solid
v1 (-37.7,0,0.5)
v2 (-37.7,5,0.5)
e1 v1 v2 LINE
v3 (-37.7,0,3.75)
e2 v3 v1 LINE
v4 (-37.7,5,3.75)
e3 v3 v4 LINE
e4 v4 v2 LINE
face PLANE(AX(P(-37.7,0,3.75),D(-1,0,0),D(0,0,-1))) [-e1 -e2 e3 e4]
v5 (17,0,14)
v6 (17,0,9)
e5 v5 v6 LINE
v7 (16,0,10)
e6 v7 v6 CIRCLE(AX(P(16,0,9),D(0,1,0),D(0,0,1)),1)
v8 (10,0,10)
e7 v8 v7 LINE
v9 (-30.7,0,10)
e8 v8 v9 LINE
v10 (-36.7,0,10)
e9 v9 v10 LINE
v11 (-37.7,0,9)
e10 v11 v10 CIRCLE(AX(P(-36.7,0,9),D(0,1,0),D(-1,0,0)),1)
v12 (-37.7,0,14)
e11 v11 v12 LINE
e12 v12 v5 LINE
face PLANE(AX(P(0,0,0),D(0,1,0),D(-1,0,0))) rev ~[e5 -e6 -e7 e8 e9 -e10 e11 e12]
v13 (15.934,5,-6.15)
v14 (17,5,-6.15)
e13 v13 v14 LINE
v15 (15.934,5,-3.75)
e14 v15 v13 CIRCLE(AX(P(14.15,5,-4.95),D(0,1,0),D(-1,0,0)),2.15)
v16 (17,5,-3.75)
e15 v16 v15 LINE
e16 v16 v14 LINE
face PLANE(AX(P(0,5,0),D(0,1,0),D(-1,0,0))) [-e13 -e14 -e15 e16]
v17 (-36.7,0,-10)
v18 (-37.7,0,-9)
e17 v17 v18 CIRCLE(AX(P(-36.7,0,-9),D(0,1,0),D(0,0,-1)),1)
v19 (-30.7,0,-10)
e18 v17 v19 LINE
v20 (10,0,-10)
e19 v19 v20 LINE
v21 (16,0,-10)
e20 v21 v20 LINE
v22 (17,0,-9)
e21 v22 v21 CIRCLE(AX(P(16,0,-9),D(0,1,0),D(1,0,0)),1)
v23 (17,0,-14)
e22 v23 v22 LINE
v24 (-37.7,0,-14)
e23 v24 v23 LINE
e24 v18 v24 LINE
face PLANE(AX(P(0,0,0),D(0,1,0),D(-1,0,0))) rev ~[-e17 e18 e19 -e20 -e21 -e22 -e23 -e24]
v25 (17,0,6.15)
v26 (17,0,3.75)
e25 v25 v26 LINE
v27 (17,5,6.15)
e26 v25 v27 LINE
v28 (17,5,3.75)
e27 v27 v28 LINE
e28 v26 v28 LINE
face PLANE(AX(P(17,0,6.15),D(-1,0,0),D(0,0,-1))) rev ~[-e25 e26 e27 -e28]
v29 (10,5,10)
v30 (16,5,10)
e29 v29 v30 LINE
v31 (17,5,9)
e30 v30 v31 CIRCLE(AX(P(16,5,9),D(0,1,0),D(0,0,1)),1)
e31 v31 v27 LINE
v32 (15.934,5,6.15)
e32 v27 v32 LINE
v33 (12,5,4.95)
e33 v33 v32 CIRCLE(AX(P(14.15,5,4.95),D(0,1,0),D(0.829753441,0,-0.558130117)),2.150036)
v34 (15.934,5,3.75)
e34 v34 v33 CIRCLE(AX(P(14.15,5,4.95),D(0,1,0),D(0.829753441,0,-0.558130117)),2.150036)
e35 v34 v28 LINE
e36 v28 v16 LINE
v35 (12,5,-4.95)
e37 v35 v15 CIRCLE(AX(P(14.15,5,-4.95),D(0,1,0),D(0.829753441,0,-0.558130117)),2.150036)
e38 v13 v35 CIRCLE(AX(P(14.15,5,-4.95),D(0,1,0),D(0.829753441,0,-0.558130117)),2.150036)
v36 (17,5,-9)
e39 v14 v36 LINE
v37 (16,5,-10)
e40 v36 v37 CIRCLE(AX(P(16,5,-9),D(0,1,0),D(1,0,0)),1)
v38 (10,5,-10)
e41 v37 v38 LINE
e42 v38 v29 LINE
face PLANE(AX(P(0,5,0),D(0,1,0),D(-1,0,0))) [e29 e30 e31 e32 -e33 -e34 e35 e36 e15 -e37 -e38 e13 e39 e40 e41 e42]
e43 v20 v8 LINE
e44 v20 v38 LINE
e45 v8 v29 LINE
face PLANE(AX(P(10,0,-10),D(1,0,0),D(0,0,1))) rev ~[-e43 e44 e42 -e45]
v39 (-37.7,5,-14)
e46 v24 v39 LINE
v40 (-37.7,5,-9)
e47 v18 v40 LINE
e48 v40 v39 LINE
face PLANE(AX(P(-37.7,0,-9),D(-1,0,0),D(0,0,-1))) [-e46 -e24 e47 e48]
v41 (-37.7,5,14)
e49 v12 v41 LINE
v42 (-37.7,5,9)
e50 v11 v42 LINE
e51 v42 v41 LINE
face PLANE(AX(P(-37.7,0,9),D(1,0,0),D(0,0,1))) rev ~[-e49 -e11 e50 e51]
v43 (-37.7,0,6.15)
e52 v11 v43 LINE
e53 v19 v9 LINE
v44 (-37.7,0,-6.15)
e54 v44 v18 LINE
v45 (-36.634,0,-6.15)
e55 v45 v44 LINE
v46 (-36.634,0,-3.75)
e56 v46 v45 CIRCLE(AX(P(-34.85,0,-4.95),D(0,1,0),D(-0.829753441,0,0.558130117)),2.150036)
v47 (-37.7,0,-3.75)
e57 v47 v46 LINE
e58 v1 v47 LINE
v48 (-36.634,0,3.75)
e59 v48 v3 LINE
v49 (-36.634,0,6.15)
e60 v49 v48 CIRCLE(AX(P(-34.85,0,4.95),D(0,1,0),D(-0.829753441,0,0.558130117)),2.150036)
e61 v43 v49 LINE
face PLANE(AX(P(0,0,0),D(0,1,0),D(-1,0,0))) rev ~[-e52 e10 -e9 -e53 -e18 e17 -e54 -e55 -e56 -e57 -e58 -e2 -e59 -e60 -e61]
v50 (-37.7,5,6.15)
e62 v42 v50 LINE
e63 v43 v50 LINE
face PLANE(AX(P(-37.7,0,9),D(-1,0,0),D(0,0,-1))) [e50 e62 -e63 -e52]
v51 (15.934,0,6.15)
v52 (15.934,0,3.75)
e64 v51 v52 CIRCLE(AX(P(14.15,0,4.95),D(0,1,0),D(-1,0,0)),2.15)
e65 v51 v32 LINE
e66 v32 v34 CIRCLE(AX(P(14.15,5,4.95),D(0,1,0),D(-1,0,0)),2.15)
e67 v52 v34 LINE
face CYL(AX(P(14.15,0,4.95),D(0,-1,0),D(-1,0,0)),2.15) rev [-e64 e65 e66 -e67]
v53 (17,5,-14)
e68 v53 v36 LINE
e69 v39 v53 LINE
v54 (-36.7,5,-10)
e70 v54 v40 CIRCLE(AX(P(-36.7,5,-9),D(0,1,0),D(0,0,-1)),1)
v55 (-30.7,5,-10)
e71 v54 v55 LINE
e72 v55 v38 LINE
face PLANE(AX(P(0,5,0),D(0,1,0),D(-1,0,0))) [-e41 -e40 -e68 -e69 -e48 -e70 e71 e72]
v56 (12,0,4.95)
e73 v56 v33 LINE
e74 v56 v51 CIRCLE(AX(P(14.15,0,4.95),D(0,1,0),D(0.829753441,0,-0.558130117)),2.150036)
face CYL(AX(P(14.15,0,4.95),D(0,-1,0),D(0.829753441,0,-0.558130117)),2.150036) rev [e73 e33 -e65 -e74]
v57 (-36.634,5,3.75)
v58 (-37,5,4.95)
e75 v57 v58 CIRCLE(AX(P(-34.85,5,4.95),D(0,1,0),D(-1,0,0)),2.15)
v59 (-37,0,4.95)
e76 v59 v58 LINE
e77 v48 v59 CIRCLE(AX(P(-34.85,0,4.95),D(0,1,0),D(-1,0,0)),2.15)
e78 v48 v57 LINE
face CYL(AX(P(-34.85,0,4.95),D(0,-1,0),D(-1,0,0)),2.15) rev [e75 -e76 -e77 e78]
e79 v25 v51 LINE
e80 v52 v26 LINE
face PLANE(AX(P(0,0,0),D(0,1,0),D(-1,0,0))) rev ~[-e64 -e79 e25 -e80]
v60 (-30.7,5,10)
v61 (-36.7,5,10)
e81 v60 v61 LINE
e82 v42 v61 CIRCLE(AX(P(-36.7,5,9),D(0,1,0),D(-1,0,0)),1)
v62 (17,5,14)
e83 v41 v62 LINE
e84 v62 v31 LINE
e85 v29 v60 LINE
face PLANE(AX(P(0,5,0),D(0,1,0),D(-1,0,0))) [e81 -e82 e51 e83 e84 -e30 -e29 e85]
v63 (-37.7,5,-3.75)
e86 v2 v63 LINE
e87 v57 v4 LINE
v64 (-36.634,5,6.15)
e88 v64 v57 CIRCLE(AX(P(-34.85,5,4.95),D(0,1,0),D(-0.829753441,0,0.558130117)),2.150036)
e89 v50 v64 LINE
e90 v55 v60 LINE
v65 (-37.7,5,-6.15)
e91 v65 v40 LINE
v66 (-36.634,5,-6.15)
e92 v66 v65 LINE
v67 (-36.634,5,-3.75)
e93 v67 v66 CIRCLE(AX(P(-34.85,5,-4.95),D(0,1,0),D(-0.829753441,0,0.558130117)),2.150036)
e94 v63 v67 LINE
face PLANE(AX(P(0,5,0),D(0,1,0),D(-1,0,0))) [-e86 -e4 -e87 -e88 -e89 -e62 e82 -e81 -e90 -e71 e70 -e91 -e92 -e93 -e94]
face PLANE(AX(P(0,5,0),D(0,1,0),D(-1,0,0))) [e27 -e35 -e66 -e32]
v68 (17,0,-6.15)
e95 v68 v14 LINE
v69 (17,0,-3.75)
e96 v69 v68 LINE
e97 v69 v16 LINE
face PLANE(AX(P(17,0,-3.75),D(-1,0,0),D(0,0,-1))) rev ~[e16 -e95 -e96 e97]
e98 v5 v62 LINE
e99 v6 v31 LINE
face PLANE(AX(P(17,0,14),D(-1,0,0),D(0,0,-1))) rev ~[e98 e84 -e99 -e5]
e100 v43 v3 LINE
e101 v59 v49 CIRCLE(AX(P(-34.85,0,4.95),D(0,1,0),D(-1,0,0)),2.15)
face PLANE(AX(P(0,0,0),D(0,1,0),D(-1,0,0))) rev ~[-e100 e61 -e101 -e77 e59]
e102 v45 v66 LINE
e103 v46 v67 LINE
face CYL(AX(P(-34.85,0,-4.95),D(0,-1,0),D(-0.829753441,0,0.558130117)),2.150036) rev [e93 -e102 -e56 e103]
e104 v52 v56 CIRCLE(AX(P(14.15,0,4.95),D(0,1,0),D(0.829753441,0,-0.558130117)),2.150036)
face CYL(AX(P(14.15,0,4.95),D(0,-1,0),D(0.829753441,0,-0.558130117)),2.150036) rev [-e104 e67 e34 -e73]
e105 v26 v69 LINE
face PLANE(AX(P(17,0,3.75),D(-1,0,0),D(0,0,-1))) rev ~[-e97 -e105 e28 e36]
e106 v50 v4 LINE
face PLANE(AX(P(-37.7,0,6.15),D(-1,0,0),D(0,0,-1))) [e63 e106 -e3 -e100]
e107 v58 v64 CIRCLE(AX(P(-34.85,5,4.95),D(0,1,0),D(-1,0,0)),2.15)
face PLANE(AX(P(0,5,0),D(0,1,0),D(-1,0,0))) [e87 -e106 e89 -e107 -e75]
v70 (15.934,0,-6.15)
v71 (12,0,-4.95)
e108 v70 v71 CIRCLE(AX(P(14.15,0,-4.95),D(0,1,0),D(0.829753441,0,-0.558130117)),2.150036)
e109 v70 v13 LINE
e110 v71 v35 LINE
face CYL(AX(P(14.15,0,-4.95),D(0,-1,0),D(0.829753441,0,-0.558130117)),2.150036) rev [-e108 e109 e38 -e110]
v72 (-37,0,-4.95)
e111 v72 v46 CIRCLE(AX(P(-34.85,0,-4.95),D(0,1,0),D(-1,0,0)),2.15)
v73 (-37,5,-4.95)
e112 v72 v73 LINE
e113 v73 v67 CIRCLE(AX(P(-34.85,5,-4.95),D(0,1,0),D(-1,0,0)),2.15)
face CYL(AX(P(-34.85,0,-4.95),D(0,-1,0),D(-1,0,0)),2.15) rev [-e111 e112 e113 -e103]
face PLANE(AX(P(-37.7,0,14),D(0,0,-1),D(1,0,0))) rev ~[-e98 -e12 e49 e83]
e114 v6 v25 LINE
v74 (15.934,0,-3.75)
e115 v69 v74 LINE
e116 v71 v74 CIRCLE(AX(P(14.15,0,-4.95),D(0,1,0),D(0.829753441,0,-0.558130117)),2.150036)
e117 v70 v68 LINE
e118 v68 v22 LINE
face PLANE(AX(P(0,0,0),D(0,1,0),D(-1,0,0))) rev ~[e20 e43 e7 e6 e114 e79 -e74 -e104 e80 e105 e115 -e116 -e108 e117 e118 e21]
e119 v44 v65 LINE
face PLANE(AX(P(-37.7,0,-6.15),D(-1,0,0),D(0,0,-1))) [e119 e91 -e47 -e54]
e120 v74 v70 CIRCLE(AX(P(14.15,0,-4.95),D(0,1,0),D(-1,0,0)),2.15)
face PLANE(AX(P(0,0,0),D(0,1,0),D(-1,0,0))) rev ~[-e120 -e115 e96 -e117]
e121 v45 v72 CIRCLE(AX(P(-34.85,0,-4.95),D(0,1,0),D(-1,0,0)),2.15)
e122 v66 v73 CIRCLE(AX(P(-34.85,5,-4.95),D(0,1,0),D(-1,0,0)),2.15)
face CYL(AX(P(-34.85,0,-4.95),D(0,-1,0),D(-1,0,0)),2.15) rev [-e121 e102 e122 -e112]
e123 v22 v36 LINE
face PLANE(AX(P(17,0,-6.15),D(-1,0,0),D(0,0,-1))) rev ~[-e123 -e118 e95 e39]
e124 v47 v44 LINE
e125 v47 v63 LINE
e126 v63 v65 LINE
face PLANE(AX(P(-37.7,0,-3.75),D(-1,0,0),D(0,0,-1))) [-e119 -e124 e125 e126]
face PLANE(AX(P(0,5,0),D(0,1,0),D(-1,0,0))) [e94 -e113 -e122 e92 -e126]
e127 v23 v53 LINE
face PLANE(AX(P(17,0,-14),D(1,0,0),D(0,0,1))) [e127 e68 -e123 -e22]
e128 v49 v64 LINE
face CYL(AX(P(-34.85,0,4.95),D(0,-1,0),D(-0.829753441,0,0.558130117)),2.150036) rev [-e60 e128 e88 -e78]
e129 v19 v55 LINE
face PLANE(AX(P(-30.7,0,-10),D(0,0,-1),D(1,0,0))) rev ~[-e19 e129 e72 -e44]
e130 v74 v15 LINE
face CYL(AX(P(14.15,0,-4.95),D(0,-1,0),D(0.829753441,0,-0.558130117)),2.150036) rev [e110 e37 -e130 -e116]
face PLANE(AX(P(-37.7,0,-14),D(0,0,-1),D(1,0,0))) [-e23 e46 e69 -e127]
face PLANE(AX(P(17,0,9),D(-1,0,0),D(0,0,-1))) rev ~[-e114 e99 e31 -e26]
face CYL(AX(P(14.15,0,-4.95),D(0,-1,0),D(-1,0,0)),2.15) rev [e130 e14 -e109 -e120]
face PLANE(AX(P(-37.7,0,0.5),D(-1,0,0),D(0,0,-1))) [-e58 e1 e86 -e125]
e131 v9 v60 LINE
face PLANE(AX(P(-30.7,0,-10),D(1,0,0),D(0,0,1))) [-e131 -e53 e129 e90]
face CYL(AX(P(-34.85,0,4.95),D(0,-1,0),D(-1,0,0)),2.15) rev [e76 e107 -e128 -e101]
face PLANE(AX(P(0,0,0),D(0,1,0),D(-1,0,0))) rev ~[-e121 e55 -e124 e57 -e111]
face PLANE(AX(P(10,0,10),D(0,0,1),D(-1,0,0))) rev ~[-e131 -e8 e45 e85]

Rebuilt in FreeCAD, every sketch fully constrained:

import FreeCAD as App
import Part
import Sketcher
Q = App.Units.Quantity

doc = App.newDocument("Part")
body = doc.addObject("PartDesign::Body", "Body")

sketch1 = body.newObject("Sketcher::SketchObject", "Sketch")
sketch1.AttachmentSupport = (doc.getObject("XZ_Plane"), [""])
sketch1.MapMode = "FlatFace"
sketch1.addGeometry([
    Part.LineSegment(App.Vector(17, -14, 0), App.Vector(-37.7, -14, 0)),
    Part.LineSegment(App.Vector(-37.7, -14, 0), App.Vector(-37.7, 14, 0)),
    Part.LineSegment(App.Vector(-37.7, 14, 0), App.Vector(17, 14, 0)),
    Part.LineSegment(App.Vector(17, 14, 0), App.Vector(17, -14, 0)),
    Part.Circle(App.Vector(14.2, -5, 0), App.Vector(0, 0, 1), 2.1),
    Part.Circle(App.Vector(14.2, 5, 0), App.Vector(0, 0, 1), 2.1),
    Part.LineSegment(App.Vector(10, -10, 0), App.Vector(10, 10, 0)),
    Part.LineSegment(App.Vector(10, 10, 0), App.Vector(-30.7, 10, 0)),
    Part.LineSegment(App.Vector(-30.7, 10, 0), App.Vector(-30.7, -10, 0)),
    Part.LineSegment(App.Vector(-30.7, -10, 0), App.Vector(10, -10, 0)),
    Part.Circle(App.Vector(-34.9, 5, 0), App.Vector(0, 0, 1), 2.1),
    Part.Circle(App.Vector(-34.9, -5, 0), App.Vector(0, 0, 1), 2.1),
], False)
sketch1.addConstraint([
    Sketcher.Constraint("Coincident", 0, 2, 1, 1),
    Sketcher.Constraint("Coincident", 1, 2, 2, 1),
    Sketcher.Constraint("Coincident", 2, 2, 3, 1),
    Sketcher.Constraint("Coincident", 3, 2, 0, 1),
    Sketcher.Constraint("Coincident", 6, 2, 7, 1),
    Sketcher.Constraint("Coincident", 7, 2, 8, 1),
    Sketcher.Constraint("Coincident", 8, 2, 9, 1),
    Sketcher.Constraint("Coincident", 9, 2, 6, 1),
    Sketcher.Constraint("Horizontal", 0),
    Sketcher.Constraint("Vertical", 1),
    Sketcher.Constraint("Horizontal", 2),
    Sketcher.Constraint("Vertical", 3),
    Sketcher.Constraint("Vertical", 6),
    Sketcher.Constraint("Horizontal", 7),
    Sketcher.Constraint("Vertical", 8),
    Sketcher.Constraint("Horizontal", 9),
    Sketcher.Constraint("Equal", 4, 5),
    Sketcher.Constraint("Equal", 5, 10),
    Sketcher.Constraint("Equal", 10, 11),
    Sketcher.Constraint("Symmetric", 4, 3, 5, 3, -1),
    Sketcher.Constraint("Symmetric", 10, 3, 11, 3, -1),
    Sketcher.Constraint("Horizontal", 5, 3, 10, 3),
    Sketcher.Constraint("Diameter", 4, Q("4.3 mm")),
    Sketcher.Constraint("DistanceY", 1, 1, 1, 2, Q("28 mm")),
    Sketcher.Constraint("DistanceY", 6, 1, 6, 2, Q("20 mm")),
    Sketcher.Constraint("DistanceX", 0, 2, 0, 1, Q("54.7 mm")),
    Sketcher.Constraint("DistanceX", 7, 2, 7, 1, Q("40.7 mm")),
    Sketcher.Constraint("DistanceY", 0, 2, -1, 1, Q("14 mm")),
    Sketcher.Constraint("DistanceX", -1, 1, 2, 2, Q("17 mm")),
    Sketcher.Constraint("DistanceX", -1, 1, 6, 2, Q("10 mm")),
    Sketcher.Constraint("DistanceY", -1, 1, 6, 2, Q("10 mm")),
    Sketcher.Constraint("DistanceX", 10, 3, 5, 3, Q("49 mm")),
    Sketcher.Constraint("DistanceY", 4, 3, 5, 3, Q("9.9 mm")),
    Sketcher.Constraint("DistanceX", -1, 1, 4, 3, Q("14.15 mm")),
])
pad1 = body.newObject("PartDesign::Pad", "Pad")
pad1.Profile = sketch1
pad1.Length = 5
pad1.Reversed = True

doc.recompute()
